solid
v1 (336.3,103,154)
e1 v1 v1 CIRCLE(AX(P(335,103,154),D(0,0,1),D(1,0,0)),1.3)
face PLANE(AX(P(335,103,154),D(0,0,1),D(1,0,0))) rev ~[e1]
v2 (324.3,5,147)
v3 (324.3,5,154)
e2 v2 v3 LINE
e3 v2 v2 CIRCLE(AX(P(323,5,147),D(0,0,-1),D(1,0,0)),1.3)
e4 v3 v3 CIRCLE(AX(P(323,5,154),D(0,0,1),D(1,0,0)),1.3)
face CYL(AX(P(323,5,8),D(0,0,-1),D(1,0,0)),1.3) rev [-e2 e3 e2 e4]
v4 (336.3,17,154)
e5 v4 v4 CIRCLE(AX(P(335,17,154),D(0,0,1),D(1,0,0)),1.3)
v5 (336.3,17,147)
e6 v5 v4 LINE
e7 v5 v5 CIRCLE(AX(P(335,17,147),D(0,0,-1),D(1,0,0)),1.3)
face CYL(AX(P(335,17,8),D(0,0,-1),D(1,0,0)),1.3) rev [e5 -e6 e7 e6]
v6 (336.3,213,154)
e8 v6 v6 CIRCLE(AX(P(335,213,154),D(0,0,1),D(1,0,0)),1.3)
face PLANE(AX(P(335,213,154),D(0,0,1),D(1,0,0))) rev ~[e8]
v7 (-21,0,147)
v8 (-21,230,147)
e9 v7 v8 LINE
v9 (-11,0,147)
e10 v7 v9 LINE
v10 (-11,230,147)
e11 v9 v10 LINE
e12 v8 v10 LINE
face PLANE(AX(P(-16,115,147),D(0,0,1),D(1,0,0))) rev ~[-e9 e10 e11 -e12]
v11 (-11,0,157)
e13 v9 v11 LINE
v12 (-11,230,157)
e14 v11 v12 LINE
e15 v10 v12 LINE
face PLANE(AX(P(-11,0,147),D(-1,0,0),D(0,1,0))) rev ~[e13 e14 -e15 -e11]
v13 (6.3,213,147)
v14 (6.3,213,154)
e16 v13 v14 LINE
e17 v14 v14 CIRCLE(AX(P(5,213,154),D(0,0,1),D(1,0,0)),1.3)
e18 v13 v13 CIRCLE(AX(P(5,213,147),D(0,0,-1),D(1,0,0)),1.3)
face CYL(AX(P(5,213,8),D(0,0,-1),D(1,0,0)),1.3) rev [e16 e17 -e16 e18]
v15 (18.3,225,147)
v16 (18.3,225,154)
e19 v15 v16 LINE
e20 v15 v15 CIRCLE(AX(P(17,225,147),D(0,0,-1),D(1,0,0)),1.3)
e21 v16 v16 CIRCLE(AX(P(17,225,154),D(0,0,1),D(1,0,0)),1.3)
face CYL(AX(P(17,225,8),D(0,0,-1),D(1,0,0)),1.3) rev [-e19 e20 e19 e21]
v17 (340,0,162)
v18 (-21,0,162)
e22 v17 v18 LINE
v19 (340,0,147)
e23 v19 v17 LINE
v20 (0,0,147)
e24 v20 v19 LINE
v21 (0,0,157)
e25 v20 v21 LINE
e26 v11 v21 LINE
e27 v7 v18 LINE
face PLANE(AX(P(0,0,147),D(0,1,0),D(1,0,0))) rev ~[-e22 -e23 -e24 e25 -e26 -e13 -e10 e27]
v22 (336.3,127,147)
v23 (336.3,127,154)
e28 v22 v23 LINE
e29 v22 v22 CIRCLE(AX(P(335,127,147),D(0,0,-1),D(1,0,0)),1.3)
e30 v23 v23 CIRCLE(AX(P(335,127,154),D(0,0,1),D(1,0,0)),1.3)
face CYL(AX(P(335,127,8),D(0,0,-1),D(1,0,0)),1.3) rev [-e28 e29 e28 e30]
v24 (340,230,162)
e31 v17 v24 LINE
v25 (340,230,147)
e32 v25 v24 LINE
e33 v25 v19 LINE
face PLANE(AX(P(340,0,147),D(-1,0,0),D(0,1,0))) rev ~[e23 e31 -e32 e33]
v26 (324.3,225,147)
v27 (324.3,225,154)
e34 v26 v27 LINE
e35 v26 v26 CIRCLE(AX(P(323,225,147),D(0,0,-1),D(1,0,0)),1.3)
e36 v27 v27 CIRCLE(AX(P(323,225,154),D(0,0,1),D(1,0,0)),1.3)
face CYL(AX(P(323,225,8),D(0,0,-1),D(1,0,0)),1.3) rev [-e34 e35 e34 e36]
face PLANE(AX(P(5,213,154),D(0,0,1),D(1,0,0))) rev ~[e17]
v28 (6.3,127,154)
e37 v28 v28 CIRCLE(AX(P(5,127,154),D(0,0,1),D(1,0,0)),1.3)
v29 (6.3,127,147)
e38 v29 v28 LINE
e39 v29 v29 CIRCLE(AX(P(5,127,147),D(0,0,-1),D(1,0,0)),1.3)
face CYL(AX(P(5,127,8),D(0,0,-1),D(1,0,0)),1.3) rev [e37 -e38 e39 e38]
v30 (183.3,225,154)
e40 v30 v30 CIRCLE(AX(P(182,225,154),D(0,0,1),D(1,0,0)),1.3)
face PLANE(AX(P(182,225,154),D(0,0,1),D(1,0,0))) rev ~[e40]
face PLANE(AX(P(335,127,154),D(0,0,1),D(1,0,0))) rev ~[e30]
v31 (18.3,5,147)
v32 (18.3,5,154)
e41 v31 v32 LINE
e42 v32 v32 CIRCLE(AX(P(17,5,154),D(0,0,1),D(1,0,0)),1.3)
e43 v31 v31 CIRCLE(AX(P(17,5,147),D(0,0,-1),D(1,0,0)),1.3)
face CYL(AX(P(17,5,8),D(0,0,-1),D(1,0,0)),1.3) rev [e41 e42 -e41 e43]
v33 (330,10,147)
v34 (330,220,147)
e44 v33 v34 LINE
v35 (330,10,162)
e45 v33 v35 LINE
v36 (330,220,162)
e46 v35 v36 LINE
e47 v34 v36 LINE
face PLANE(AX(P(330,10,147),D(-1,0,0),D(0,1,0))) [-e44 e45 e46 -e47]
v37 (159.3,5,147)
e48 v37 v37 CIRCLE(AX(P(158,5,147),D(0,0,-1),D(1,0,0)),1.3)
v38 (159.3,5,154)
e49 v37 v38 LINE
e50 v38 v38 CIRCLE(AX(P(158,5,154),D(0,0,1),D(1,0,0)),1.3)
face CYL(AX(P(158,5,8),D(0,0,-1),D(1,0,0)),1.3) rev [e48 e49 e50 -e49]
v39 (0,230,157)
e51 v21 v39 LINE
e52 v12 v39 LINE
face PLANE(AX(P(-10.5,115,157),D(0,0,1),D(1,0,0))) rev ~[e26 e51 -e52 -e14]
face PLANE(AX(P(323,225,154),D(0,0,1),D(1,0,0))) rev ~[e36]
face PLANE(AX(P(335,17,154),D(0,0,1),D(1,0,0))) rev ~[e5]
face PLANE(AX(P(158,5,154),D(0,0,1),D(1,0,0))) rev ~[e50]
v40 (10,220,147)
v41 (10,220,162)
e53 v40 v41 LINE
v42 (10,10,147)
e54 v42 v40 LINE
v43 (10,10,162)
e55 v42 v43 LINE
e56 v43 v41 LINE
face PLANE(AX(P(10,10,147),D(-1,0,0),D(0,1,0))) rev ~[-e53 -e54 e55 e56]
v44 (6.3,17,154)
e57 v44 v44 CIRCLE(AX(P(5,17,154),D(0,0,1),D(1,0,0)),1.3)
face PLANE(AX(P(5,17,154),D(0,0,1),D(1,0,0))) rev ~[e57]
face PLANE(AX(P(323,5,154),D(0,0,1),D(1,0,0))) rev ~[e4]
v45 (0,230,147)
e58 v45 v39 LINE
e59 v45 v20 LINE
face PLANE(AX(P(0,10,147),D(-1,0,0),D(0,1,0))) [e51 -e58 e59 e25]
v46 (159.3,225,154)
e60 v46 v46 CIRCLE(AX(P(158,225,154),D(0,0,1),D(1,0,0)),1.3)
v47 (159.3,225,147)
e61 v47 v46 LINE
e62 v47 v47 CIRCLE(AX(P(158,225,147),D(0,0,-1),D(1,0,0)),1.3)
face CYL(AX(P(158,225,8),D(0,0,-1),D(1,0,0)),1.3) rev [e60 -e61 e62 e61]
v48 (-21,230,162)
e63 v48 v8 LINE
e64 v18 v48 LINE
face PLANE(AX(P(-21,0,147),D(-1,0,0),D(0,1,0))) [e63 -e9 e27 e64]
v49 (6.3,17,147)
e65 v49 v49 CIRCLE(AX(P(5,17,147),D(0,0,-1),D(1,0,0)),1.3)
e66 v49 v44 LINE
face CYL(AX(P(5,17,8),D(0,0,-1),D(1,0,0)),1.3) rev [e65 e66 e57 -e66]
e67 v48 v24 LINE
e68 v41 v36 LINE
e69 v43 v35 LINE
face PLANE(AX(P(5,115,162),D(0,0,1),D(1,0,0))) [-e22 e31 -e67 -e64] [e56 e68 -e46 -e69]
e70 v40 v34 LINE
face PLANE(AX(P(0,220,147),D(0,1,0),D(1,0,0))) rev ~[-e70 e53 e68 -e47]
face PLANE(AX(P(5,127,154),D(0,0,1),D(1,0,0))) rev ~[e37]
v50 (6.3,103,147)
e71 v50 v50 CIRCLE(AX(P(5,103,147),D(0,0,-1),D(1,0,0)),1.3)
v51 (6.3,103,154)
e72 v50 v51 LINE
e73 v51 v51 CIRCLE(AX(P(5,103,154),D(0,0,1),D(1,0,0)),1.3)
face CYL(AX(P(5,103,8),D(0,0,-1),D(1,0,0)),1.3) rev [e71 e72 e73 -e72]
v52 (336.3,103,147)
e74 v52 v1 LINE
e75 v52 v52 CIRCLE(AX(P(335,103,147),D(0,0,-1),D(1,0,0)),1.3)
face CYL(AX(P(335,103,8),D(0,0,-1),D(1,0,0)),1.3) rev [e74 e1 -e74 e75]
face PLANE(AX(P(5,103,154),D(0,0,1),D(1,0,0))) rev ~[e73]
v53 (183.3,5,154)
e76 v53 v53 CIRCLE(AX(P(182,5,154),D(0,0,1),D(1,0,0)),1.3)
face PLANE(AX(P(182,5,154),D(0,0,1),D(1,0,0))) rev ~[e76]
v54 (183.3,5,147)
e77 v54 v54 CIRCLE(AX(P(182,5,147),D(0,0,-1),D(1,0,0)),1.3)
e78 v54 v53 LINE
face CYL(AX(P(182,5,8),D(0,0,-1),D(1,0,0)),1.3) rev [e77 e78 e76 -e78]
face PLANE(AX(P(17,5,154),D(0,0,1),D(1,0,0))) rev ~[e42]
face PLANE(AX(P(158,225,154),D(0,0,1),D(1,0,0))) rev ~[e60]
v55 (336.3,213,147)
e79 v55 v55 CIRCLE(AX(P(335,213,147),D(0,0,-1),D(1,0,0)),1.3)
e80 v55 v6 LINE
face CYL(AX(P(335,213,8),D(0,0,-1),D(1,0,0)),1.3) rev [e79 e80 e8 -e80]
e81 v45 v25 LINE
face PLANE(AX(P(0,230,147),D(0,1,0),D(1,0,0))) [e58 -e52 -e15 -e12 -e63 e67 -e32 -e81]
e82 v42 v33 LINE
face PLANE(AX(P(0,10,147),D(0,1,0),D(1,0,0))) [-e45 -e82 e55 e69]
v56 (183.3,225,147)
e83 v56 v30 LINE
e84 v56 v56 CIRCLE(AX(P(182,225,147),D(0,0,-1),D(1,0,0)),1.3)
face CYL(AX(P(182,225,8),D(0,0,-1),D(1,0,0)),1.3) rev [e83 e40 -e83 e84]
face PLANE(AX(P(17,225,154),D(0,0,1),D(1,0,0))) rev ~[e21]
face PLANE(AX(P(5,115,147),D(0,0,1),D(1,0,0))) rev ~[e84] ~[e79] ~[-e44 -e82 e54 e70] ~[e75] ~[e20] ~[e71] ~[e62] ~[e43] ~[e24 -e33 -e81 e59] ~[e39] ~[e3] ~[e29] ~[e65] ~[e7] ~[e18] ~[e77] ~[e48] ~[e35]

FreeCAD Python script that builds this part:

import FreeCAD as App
import Part
import Sketcher
Q = App.Units.Quantity


def add_polygon(sketch, points):
    """Adds a closed chain of lines whose ends are joined by coincident constraints."""
    first, n = sketch.GeometryCount, len(points)
    for a, b in zip(points, points[1:] + points[:1]):
        sketch.addGeometry(Part.LineSegment(App.Vector(*a, 0), App.Vector(*b, 0)), False)
    for i in range(n):
        sketch.addConstraint(Sketcher.Constraint("Coincident", first + i, 2, first + (i + 1) % n, 1))

doc = App.newDocument("Part")
params = doc.addObject("Spreadsheet::Sheet", "Params")
for row, (alias, value) in enumerate([
    ("sketch1_diameter", "2.6 mm"),
    ("pad1_length", "146 mm"),
    ("sketch2_diameter", "2.6 mm"),
    ("pad2_length", "146 mm"),
    ("sketch3_diameter", "2.6 mm"),
    ("pad3_length", "146 mm"),
    ("sketch4_diameter", "2.6 mm"),
    ("pad4_length", "146 mm"),
    ("sketch5_diameter", "2.6 mm"),
    ("pad5_length", "146 mm"),
    ("sketch6_diameter", "2.6 mm"),
    ("pad6_length", "146 mm"),
    ("sketch7_diameter", "2.6 mm"),
    ("pad7_length", "146 mm"),
    ("sketch8_diameter", "2.6 mm"),
    ("pad8_length", "146 mm"),
    ("sketch9_diameter", "2.6 mm"),
    ("pad9_length", "146 mm"),
    ("sketch10_diameter", "2.6 mm"),
    ("pad10_length", "146 mm"),
    ("sketch11_diameter", "2.6 mm"),
    ("pad11_length", "146 mm"),
    ("sketch12_diameter", "2.6 mm"),
    ("pad12_length", "146 mm"),
    ("sketch13_diameter", "2.6 mm"),
    ("pad13_length", "146 mm"),
    ("sketch14_diameter", "2.6 mm"),
    ("pad14_length", "146 mm"),
    ("sketch15_diameter", "2.6 mm"),
    ("pad15_length", "146 mm"),
    ("sketch16_diameter", "2.6 mm"),
    ("pad16_length", "146 mm"),
    ("sketch17_width", "10 mm"),
    ("sketch17_height", "230 mm"),
    ("pad17_length", "10 mm"),
    ("sketch18_width", "10 mm"),
    ("sketch18_height", "210 mm"),
    ("pad18_length", "15 mm"),
    ("sketch19_width", "340 mm"),
    ("sketch19_height", "10 mm"),
    ("pad19_length", "15 mm"),
    ("sketch20_width", "10 mm"),
    ("sketch20_height", "210 mm"),
    ("pad20_length", "15 mm"),
    ("sketch21_width", "340 mm"),
    ("sketch21_height", "10 mm"),
    ("pad21_length", "15 mm"),
    ("sketch22_width", "21 mm"),
    ("sketch22_height", "230 mm"),
    ("pad22_length", "5 mm"),
], start=1):
    params.set(f"A{row}", alias)
    params.set(f"B{row}", "=" + value)
    params.setAlias(f"B{row}", alias)

body = doc.addObject("PartDesign::Body", "Body")

# Sketch on XY plane
sketch1 = doc.addObject("Sketcher::SketchObject", "Sketch")
body.addObject(sketch1)
sketch1.AttachmentSupport = (doc.XY_Plane, [""])
sketch1.MapMode = "FlatFace"
sketch1.AttachmentOffset = App.Placement(App.Vector(0, 0, 8), App.Rotation())
sketch1.addGeometry(Part.Circle(App.Vector(5, 103, 0), App.Vector(0, 0, 1), 1.3), False)
sketch1.addConstraint([
    Sketcher.Constraint("Diameter", 0, Q("2.6 mm")),
    Sketcher.Constraint("DistanceX", -1, 1, 0, 3, Q("5 mm")),
    Sketcher.Constraint("DistanceY", -1, 1, 0, 3, Q("103 mm")),
])
sketch1.setExpression("Constraints[0]", "Params.sketch1_diameter")
pad1 = doc.addObject("PartDesign::Pad", "Pad")
body.addObject(pad1)
pad1.Profile = sketch1
pad1.setExpression("Length", "Params.pad1_length")
body2 = doc.addObject("PartDesign::Body", "Body001")

# Sketch on XY plane
sketch2 = doc.addObject("Sketcher::SketchObject", "Sketch001")
body2.addObject(sketch2)
sketch2.AttachmentSupport = (doc.getObject("XY_Plane001"), [""])
sketch2.MapMode = "FlatFace"
sketch2.AttachmentOffset = App.Placement(App.Vector(0, 0, 8), App.Rotation())
sketch2.addGeometry(Part.Circle(App.Vector(5, 127, 0), App.Vector(0, 0, 1), 1.3), False)
sketch2.addConstraint([
    Sketcher.Constraint("Diameter", 0, Q("2.6 mm")),
    Sketcher.Constraint("DistanceX", -1, 1, 0, 3, Q("5 mm")),
    Sketcher.Constraint("DistanceY", -1, 1, 0, 3, Q("127 mm")),
])
sketch2.setExpression("Constraints[0]", "Params.sketch2_diameter")
pad2 = doc.addObject("PartDesign::Pad", "Pad001")
body2.addObject(pad2)
pad2.Profile = sketch2
pad2.setExpression("Length", "Params.pad2_length")
body3 = doc.addObject("PartDesign::Body", "Body002")

# Sketch on XY plane
sketch3 = doc.addObject("Sketcher::SketchObject", "Sketch002")
body3.addObject(sketch3)
sketch3.AttachmentSupport = (doc.getObject("XY_Plane002"), [""])
sketch3.MapMode = "FlatFace"
sketch3.AttachmentOffset = App.Placement(App.Vector(0, 0, 8), App.Rotation())
sketch3.addGeometry(Part.Circle(App.Vector(5, 213, 0), App.Vector(0, 0, 1), 1.3), False)
sketch3.addConstraint([
    Sketcher.Constraint("Diameter", 0, Q("2.6 mm")),
    Sketcher.Constraint("DistanceX", -1, 1, 0, 3, Q("5 mm")),
    Sketcher.Constraint("DistanceY", -1, 1, 0, 3, Q("213 mm")),
])
sketch3.setExpression("Constraints[0]", "Params.sketch3_diameter")
pad3 = doc.addObject("PartDesign::Pad", "Pad002")
body3.addObject(pad3)
pad3.Profile = sketch3
pad3.setExpression("Length", "Params.pad3_length")
body4 = doc.addObject("PartDesign::Body", "Body003")

# Sketch on XY plane
sketch4 = doc.addObject("Sketcher::SketchObject", "Sketch003")
body4.addObject(sketch4)
sketch4.AttachmentSupport = (doc.getObject("XY_Plane003"), [""])
sketch4.MapMode = "FlatFace"
sketch4.AttachmentOffset = App.Placement(App.Vector(0, 0, 8), App.Rotation())
sketch4.addGeometry(Part.Circle(App.Vector(17, 225, 0), App.Vector(0, 0, 1), 1.3), False)
sketch4.addConstraint([
    Sketcher.Constraint("Diameter", 0, Q("2.6 mm")),
    Sketcher.Constraint("DistanceX", -1, 1, 0, 3, Q("17 mm")),
    Sketcher.Constraint("DistanceY", -1, 1, 0, 3, Q("225 mm")),
])
sketch4.setExpression("Constraints[0]", "Params.sketch4_diameter")
pad4 = doc.addObject("PartDesign::Pad", "Pad003")
body4.addObject(pad4)
pad4.Profile = sketch4
pad4.setExpression("Length", "Params.pad4_length")
body5 = doc.addObject("PartDesign::Body", "Body004")

# Sketch on XY plane
sketch5 = doc.addObject("Sketcher::SketchObject", "Sketch004")
body5.addObject(sketch5)
sketch5.AttachmentSupport = (doc.getObject("XY_Plane004"), [""])
sketch5.MapMode = "FlatFace"
sketch5.AttachmentOffset = App.Placement(App.Vector(0, 0, 8), App.Rotation())
sketch5.addGeometry(Part.Circle(App.Vector(158, 225, 0), App.Vector(0, 0, 1), 1.3), False)
sketch5.addConstraint([
    Sketcher.Constraint("Diameter", 0, Q("2.6 mm")),
    Sketcher.Constraint("DistanceX", -1, 1, 0, 3, Q("158 mm")),
    Sketcher.Constraint("DistanceY", -1, 1, 0, 3, Q("225 mm")),
])
sketch5.setExpression("Constraints[0]", "Params.sketch5_diameter")
pad5 = doc.addObject("PartDesign::Pad", "Pad004")
body5.addObject(pad5)
pad5.Profile = sketch5
pad5.setExpression("Length", "Params.pad5_length")
body6 = doc.addObject("PartDesign::Body", "Body005")

# Sketch on XY plane
sketch6 = doc.addObject("Sketcher::SketchObject", "Sketch005")
body6.addObject(sketch6)
sketch6.AttachmentSupport = (doc.getObject("XY_Plane005"), [""])
sketch6.MapMode = "FlatFace"
sketch6.AttachmentOffset = App.Placement(App.Vector(0, 0, 8), App.Rotation())
sketch6.addGeometry(Part.Circle(App.Vector(182, 225, 0), App.Vector(0, 0, 1), 1.3), False)
sketch6.addConstraint([
    Sketcher.Constraint("Diameter", 0, Q("2.6 mm")),
    Sketcher.Constraint("DistanceX", -1, 1, 0, 3, Q("182 mm")),
    Sketcher.Constraint("DistanceY", -1, 1, 0, 3, Q("225 mm")),
])
sketch6.setExpression("Constraints[0]", "Params.sketch6_diameter")
pad6 = doc.addObject("PartDesign::Pad", "Pad005")
body6.addObject(pad6)
pad6.Profile = sketch6
pad6.setExpression("Length", "Params.pad6_length")
body7 = doc.addObject("PartDesign::Body", "Body006")

# Sketch on XY plane
sketch7 = doc.addObject("Sketcher::SketchObject", "Sketch006")
body7.addObject(sketch7)
sketch7.AttachmentSupport = (doc.getObject("XY_Plane006"), [""])
sketch7.MapMode = "FlatFace"
sketch7.AttachmentOffset = App.Placement(App.Vector(0, 0, 8), App.Rotation())
sketch7.addGeometry(Part.Circle(App.Vector(323, 225, 0), App.Vector(0, 0, 1), 1.3), False)
sketch7.addConstraint([
    Sketcher.Constraint("Diameter", 0, Q("2.6 mm")),
    Sketcher.Constraint("DistanceX", -1, 1, 0, 3, Q("323 mm")),
    Sketcher.Constraint("DistanceY", -1, 1, 0, 3, Q("225 mm")),
])
sketch7.setExpression("Constraints[0]", "Params.sketch7_diameter")
pad7 = doc.addObject("PartDesign::Pad", "Pad006")
body7.addObject(pad7)
pad7.Profile = sketch7
pad7.setExpression("Length", "Params.pad7_length")
body8 = doc.addObject("PartDesign::Body", "Body007")

# Sketch on XY plane
sketch8 = doc.addObject("Sketcher::SketchObject", "Sketch007")
body8.addObject(sketch8)
sketch8.AttachmentSupport = (doc.getObject("XY_Plane007"), [""])
sketch8.MapMode = "FlatFace"
sketch8.AttachmentOffset = App.Placement(App.Vector(0, 0, 8), App.Rotation())
sketch8.addGeometry(Part.Circle(App.Vector(335, 213, 0), App.Vector(0, 0, 1), 1.3), False)
sketch8.addConstraint([
    Sketcher.Constraint("Diameter", 0, Q("2.6 mm")),
    Sketcher.Constraint("DistanceX", -1, 1, 0, 3, Q("335 mm")),
    Sketcher.Constraint("DistanceY", -1, 1, 0, 3, Q("213 mm")),
])
sketch8.setExpression("Constraints[0]", "Params.sketch8_diameter")
pad8 = doc.addObject("PartDesign::Pad", "Pad007")
body8.addObject(pad8)
pad8.Profile = sketch8
pad8.setExpression("Length", "Params.pad8_length")
body9 = doc.addObject("PartDesign::Body", "Body008")

# Sketch on XY plane
sketch9 = doc.addObject("Sketcher::SketchObject", "Sketch008")
body9.addObject(sketch9)
sketch9.AttachmentSupport = (doc.getObject("XY_Plane008"), [""])
sketch9.MapMode = "FlatFace"
sketch9.AttachmentOffset = App.Placement(App.Vector(0, 0, 8), App.Rotation())
sketch9.addGeometry(Part.Circle(App.Vector(335, 127, 0), App.Vector(0, 0, 1), 1.3), False)
sketch9.addConstraint([
    Sketcher.Constraint("Diameter", 0, Q("2.6 mm")),
    Sketcher.Constraint("DistanceX", -1, 1, 0, 3, Q("335 mm")),
    Sketcher.Constraint("DistanceY", -1, 1, 0, 3, Q("127 mm")),
])
sketch9.setExpression("Constraints[0]", "Params.sketch9_diameter")
pad9 = doc.addObject("PartDesign::Pad", "Pad008")
body9.addObject(pad9)
pad9.Profile = sketch9
pad9.setExpression("Length", "Params.pad9_length")
body10 = doc.addObject("PartDesign::Body", "Body009")

# Sketch on XY plane
sketch10 = doc.addObject("Sketcher::SketchObject", "Sketch009")
body10.addObject(sketch10)
sketch10.AttachmentSupport = (doc.getObject("XY_Plane009"), [""])
sketch10.MapMode = "FlatFace"
sketch10.AttachmentOffset = App.Placement(App.Vector(0, 0, 8), App.Rotation())
sketch10.addGeometry(Part.Circle(App.Vector(335, 103, 0), App.Vector(0, 0, 1), 1.3), False)
sketch10.addConstraint([
    Sketcher.Constraint("Diameter", 0, Q("2.6 mm")),
    Sketcher.Constraint("DistanceX", -1, 1, 0, 3, Q("335 mm")),
    Sketcher.Constraint("DistanceY", -1, 1, 0, 3, Q("103 mm")),
])
sketch10.setExpression("Constraints[0]", "Params.sketch10_diameter")
pad10 = doc.addObject("PartDesign::Pad", "Pad009")
body10.addObject(pad10)
pad10.Profile = sketch10
pad10.setExpression("Length", "Params.pad10_length")
body11 = doc.addObject("PartDesign::Body", "Body010")

# Sketch on XY plane
sketch11 = doc.addObject("Sketcher::SketchObject", "Sketch010")
body11.addObject(sketch11)
sketch11.AttachmentSupport = (doc.getObject("XY_Plane010"), [""])
sketch11.MapMode = "FlatFace"
sketch11.AttachmentOffset = App.Placement(App.Vector(0, 0, 8), App.Rotation())
sketch11.addGeometry(Part.Circle(App.Vector(335, 17, 0), App.Vector(0, 0, 1), 1.3), False)
sketch11.addConstraint([
    Sketcher.Constraint("Diameter", 0, Q("2.6 mm")),
    Sketcher.Constraint("DistanceX", -1, 1, 0, 3, Q("335 mm")),
    Sketcher.Constraint("DistanceY", -1, 1, 0, 3, Q("17 mm")),
])
sketch11.setExpression("Constraints[0]", "Params.sketch11_diameter")
pad11 = doc.addObject("PartDesign::Pad", "Pad010")
body11.addObject(pad11)
pad11.Profile = sketch11
pad11.setExpression("Length", "Params.pad11_length")
body12 = doc.addObject("PartDesign::Body", "Body011")

# Sketch on XY plane
sketch12 = doc.addObject("Sketcher::SketchObject", "Sketch011")
body12.addObject(sketch12)
sketch12.AttachmentSupport = (doc.getObject("XY_Plane011"), [""])
sketch12.MapMode = "FlatFace"
sketch12.AttachmentOffset = App.Placement(App.Vector(0, 0, 8), App.Rotation())
sketch12.addGeometry(Part.Circle(App.Vector(323, 5, 0), App.Vector(0, 0, 1), 1.3), False)
sketch12.addConstraint([
    Sketcher.Constraint("Diameter", 0, Q("2.6 mm")),
    Sketcher.Constraint("DistanceX", -1, 1, 0, 3, Q("323 mm")),
    Sketcher.Constraint("DistanceY", -1, 1, 0, 3, Q("5 mm")),
])
sketch12.setExpression("Constraints[0]", "Params.sketch12_diameter")
pad12 = doc.addObject("PartDesign::Pad", "Pad011")
body12.addObject(pad12)
pad12.Profile = sketch12
pad12.setExpression("Length", "Params.pad12_length")
body13 = doc.addObject("PartDesign::Body", "Body012")

# Sketch on XY plane
sketch13 = doc.addObject("Sketcher::SketchObject", "Sketch012")
body13.addObject(sketch13)
sketch13.AttachmentSupport = (doc.getObject("XY_Plane012"), [""])
sketch13.MapMode = "FlatFace"
sketch13.AttachmentOffset = App.Placement(App.Vector(0, 0, 8), App.Rotation())
sketch13.addGeometry(Part.Circle(App.Vector(182, 5, 0), App.Vector(0, 0, 1), 1.3), False)
sketch13.addConstraint([
    Sketcher.Constraint("Diameter", 0, Q("2.6 mm")),
    Sketcher.Constraint("DistanceX", -1, 1, 0, 3, Q("182 mm")),
    Sketcher.Constraint("DistanceY", -1, 1, 0, 3, Q("5 mm")),
])
sketch13.setExpression("Constraints[0]", "Params.sketch13_diameter")
pad13 = doc.addObject("PartDesign::Pad", "Pad012")
body13.addObject(pad13)
pad13.Profile = sketch13
pad13.setExpression("Length", "Params.pad13_length")
body14 = doc.addObject("PartDesign::Body", "Body013")

# Sketch on XY plane
sketch14 = doc.addObject("Sketcher::SketchObject", "Sketch013")
body14.addObject(sketch14)
sketch14.AttachmentSupport = (doc.getObject("XY_Plane013"), [""])
sketch14.MapMode = "FlatFace"
sketch14.AttachmentOffset = App.Placement(App.Vector(0, 0, 8), App.Rotation())
sketch14.addGeometry(Part.Circle(App.Vector(158, 5, 0), App.Vector(0, 0, 1), 1.3), False)
sketch14.addConstraint([
    Sketcher.Constraint("Diameter", 0, Q("2.6 mm")),
    Sketcher.Constraint("DistanceX", -1, 1, 0, 3, Q("158 mm")),
    Sketcher.Constraint("DistanceY", -1, 1, 0, 3, Q("5 mm")),
])
sketch14.setExpression("Constraints[0]", "Params.sketch14_diameter")
pad14 = doc.addObject("PartDesign::Pad", "Pad013")
body14.addObject(pad14)
pad14.Profile = sketch14
pad14.setExpression("Length", "Params.pad14_length")
body15 = doc.addObject("PartDesign::Body", "Body014")

# Sketch on XY plane
sketch15 = doc.addObject("Sketcher::SketchObject", "Sketch014")
body15.addObject(sketch15)
sketch15.AttachmentSupport = (doc.getObject("XY_Plane014"), [""])
sketch15.MapMode = "FlatFace"
sketch15.AttachmentOffset = App.Placement(App.Vector(0, 0, 8), App.Rotation())
sketch15.addGeometry(Part.Circle(App.Vector(5, 17, 0), App.Vector(0, 0, 1), 1.3), False)
sketch15.addConstraint([
    Sketcher.Constraint("Diameter", 0, Q("2.6 mm")),
    Sketcher.Constraint("DistanceX", -1, 1, 0, 3, Q("5 mm")),
    Sketcher.Constraint("DistanceY", -1, 1, 0, 3, Q("17 mm")),
])
sketch15.setExpression("Constraints[0]", "Params.sketch15_diameter")
pad15 = doc.addObject("PartDesign::Pad", "Pad014")
body15.addObject(pad15)
pad15.Profile = sketch15
pad15.setExpression("Length", "Params.pad15_length")
body16 = doc.addObject("PartDesign::Body", "Body015")

# Sketch on XY plane
sketch16 = doc.addObject("Sketcher::SketchObject", "Sketch015")
body16.addObject(sketch16)
sketch16.AttachmentSupport = (doc.getObject("XY_Plane015"), [""])
sketch16.MapMode = "FlatFace"
sketch16.AttachmentOffset = App.Placement(App.Vector(0, 0, 8), App.Rotation())
sketch16.addGeometry(Part.Circle(App.Vector(17, 5, 0), App.Vector(0, 0, 1), 1.3), False)
sketch16.addConstraint([
    Sketcher.Constraint("Diameter", 0, Q("2.6 mm")),
    Sketcher.Constraint("DistanceX", -1, 1, 0, 3, Q("17 mm")),
    Sketcher.Constraint("DistanceY", -1, 1, 0, 3, Q("5 mm")),
])
sketch16.setExpression("Constraints[0]", "Params.sketch16_diameter")
pad16 = doc.addObject("PartDesign::Pad", "Pad015")
body16.addObject(pad16)
pad16.Profile = sketch16
pad16.setExpression("Length", "Params.pad16_length")
body17 = doc.addObject("PartDesign::Body", "Body016")

# Sketch on XY plane
sketch17 = doc.addObject("Sketcher::SketchObject", "Sketch016")
body17.addObject(sketch17)
sketch17.AttachmentSupport = (doc.getObject("XY_Plane016"), [""])
sketch17.MapMode = "FlatFace"
add_polygon(sketch17, [(-21, 479), (-21, 249), (-11, 249), (-11, 479)])  # lines 0-3
sketch17.addConstraint([
    Sketcher.Constraint("Vertical", 0),
    Sketcher.Constraint("Horizontal", 1),
    Sketcher.Constraint("Vertical", 2),
    Sketcher.Constraint("Horizontal", 3),
    Sketcher.Constraint("DistanceX", 1, 1, 1, 2, Q("10 mm")),
    Sketcher.Constraint("DistanceY", 0, 2, 0, 1, Q("230 mm")),
    Sketcher.Constraint("DistanceX", 0, 2, -1, 1, Q("21 mm")),
    Sketcher.Constraint("DistanceY", -1, 1, 0, 2, Q("249 mm")),
])
sketch17.setExpression("Constraints[8]", "Params.sketch17_width")
sketch17.setExpression("Constraints[9]", "Params.sketch17_height")
pad17 = doc.addObject("PartDesign::Pad", "Pad016")
body17.addObject(pad17)
pad17.Profile = sketch17
pad17.setExpression("Length", "Params.pad17_length")
body18 = doc.addObject("PartDesign::Body", "Body017")

# Sketch on XY plane
sketch18 = doc.addObject("Sketcher::SketchObject", "Sketch017")
body18.addObject(sketch18)
sketch18.AttachmentSupport = (doc.getObject("XY_Plane017"), [""])
sketch18.MapMode = "FlatFace"
add_polygon(sketch18, [(330, 469), (330, 259), (340, 259), (340, 469)])  # lines 0-3
sketch18.addConstraint([
    Sketcher.Constraint("Vertical", 0),
    Sketcher.Constraint("Horizontal", 1),
    Sketcher.Constraint("Vertical", 2),
    Sketcher.Constraint("Horizontal", 3),
    Sketcher.Constraint("DistanceX", 1, 1, 1, 2, Q("10 mm")),
    Sketcher.Constraint("DistanceY", 0, 2, 0, 1, Q("210 mm")),
    Sketcher.Constraint("DistanceX", -1, 1, 0, 2, Q("330 mm")),
    Sketcher.Constraint("DistanceY", -1, 1, 0, 2, Q("259 mm")),
])
sketch18.setExpression("Constraints[8]", "Params.sketch18_width")
sketch18.setExpression("Constraints[9]", "Params.sketch18_height")
pad18 = doc.addObject("PartDesign::Pad", "Pad017")
body18.addObject(pad18)
pad18.Profile = sketch18
pad18.setExpression("Length", "Params.pad18_length")
body19 = doc.addObject("PartDesign::Body", "Body018")

# Sketch on XY plane
sketch19 = doc.addObject("Sketcher::SketchObject", "Sketch018")
body19.addObject(sketch19)
sketch19.AttachmentSupport = (doc.getObject("XY_Plane018"), [""])
sketch19.MapMode = "FlatFace"
add_polygon(sketch19, [(0, 259), (0, 249), (340, 249), (340, 259)])  # lines 0-3
sketch19.addConstraint([
    Sketcher.Constraint("Vertical", 0),
    Sketcher.Constraint("Horizontal", 1),
    Sketcher.Constraint("Vertical", 2),
    Sketcher.Constraint("Horizontal", 3),
    Sketcher.Constraint("PointOnObject", 0, 2, -2),
    Sketcher.Constraint("DistanceX", 1, 1, 1, 2, Q("340 mm")),
    Sketcher.Constraint("DistanceY", 0, 2, 0, 1, Q("10 mm")),
    Sketcher.Constraint("DistanceY", -1, 1, 0, 2, Q("249 mm")),
])
sketch19.setExpression("Constraints[9]", "Params.sketch19_width")
sketch19.setExpression("Constraints[10]", "Params.sketch19_height")
pad19 = doc.addObject("PartDesign::Pad", "Pad018")
body19.addObject(pad19)
pad19.Profile = sketch19
pad19.setExpression("Length", "Params.pad19_length")
body20 = doc.addObject("PartDesign::Body", "Body019")

# Sketch on XY plane
sketch20 = doc.addObject("Sketcher::SketchObject", "Sketch019")
body20.addObject(sketch20)
sketch20.AttachmentSupport = (doc.getObject("XY_Plane019"), [""])
sketch20.MapMode = "FlatFace"
add_polygon(sketch20, [(0, 469), (0, 259), (10, 259), (10, 469)])  # lines 0-3
sketch20.addConstraint([
    Sketcher.Constraint("Vertical", 0),
    Sketcher.Constraint("Horizontal", 1),
    Sketcher.Constraint("Vertical", 2),
    Sketcher.Constraint("Horizontal", 3),
    Sketcher.Constraint("PointOnObject", 0, 2, -2),
    Sketcher.Constraint("DistanceX", 1, 1, 1, 2, Q("10 mm")),
    Sketcher.Constraint("DistanceY", 0, 2, 0, 1, Q("210 mm")),
    Sketcher.Constraint("DistanceY", -1, 1, 0, 2, Q("259 mm")),
])
sketch20.setExpression("Constraints[9]", "Params.sketch20_width")
sketch20.setExpression("Constraints[10]", "Params.sketch20_height")
pad20 = doc.addObject("PartDesign::Pad", "Pad019")
body20.addObject(pad20)
pad20.Profile = sketch20
pad20.setExpression("Length", "Params.pad20_length")
body21 = doc.addObject("PartDesign::Body", "Body020")

# Sketch on XY plane
sketch21 = doc.addObject("Sketcher::SketchObject", "Sketch020")
body21.addObject(sketch21)
sketch21.AttachmentSupport = (doc.getObject("XY_Plane020"), [""])
sketch21.MapMode = "FlatFace"
add_polygon(sketch21, [(0, 479), (0, 469), (340, 469), (340, 479)])  # lines 0-3
sketch21.addConstraint([
    Sketcher.Constraint("Vertical", 0),
    Sketcher.Constraint("Horizontal", 1),
    Sketcher.Constraint("Vertical", 2),
    Sketcher.Constraint("Horizontal", 3),
    Sketcher.Constraint("PointOnObject", 0, 2, -2),
    Sketcher.Constraint("DistanceX", 1, 1, 1, 2, Q("340 mm")),
    Sketcher.Constraint("DistanceY", 0, 2, 0, 1, Q("10 mm")),
    Sketcher.Constraint("DistanceY", -1, 1, 0, 2, Q("469 mm")),
])
sketch21.setExpression("Constraints[9]", "Params.sketch21_width")
sketch21.setExpression("Constraints[10]", "Params.sketch21_height")
pad21 = doc.addObject("PartDesign::Pad", "Pad020")
body21.addObject(pad21)
pad21.Profile = sketch21
pad21.setExpression("Length", "Params.pad21_length")
doc.recompute()

boolean = doc.addObject("PartDesign::Boolean", "Boolean")
body21.addObject(boolean)
boolean.Type = "Fuse"
boolean.addObjects([body18])
doc.recompute()

boolean2 = doc.addObject("PartDesign::Boolean", "Boolean001")
body21.addObject(boolean2)
boolean2.Type = "Fuse"
boolean2.addObjects([body19])
doc.recompute()

boolean3 = doc.addObject("PartDesign::Boolean", "Boolean002")
body21.addObject(boolean3)
boolean3.Type = "Fuse"
boolean3.addObjects([body20])
body22 = doc.addObject("PartDesign::Body", "Body021")

# Sketch on XY plane
sketch22 = doc.addObject("Sketcher::SketchObject", "Sketch021")
body22.addObject(sketch22)
sketch22.AttachmentSupport = (doc.getObject("XY_Plane021"), [""])
sketch22.MapMode = "FlatFace"
sketch22.AttachmentOffset = App.Placement(App.Vector(0, 0, 10), App.Rotation())
add_polygon(sketch22, [(-21, 479), (-21, 249), (0, 249), (0, 479)])  # lines 0-3
sketch22.addConstraint([
    Sketcher.Constraint("Vertical", 0),
    Sketcher.Constraint("Horizontal", 1),
    Sketcher.Constraint("Vertical", 2),
    Sketcher.Constraint("Horizontal", 3),
    Sketcher.Constraint("PointOnObject", 1, 2, -2),
    Sketcher.Constraint("DistanceX", 1, 1, 1, 2, Q("21 mm")),
    Sketcher.Constraint("DistanceY", 0, 2, 0, 1, Q("230 mm")),
    Sketcher.Constraint("DistanceY", -1, 1, 0, 2, Q("249 mm")),
])
sketch22.setExpression("Constraints[9]", "Params.sketch22_width")
sketch22.setExpression("Constraints[10]", "Params.sketch22_height")
pad22 = doc.addObject("PartDesign::Pad", "Pad021")
body22.addObject(pad22)
pad22.Profile = sketch22
pad22.setExpression("Length", "Params.pad22_length")
doc.recompute()

boolean4 = doc.addObject("PartDesign::Boolean", "Boolean003")
body22.addObject(boolean4)
boolean4.Type = "Fuse"
boolean4.addObjects([body17])
doc.recompute()

boolean5 = doc.addObject("PartDesign::Boolean", "Boolean004")
body22.addObject(boolean5)
boolean5.Type = "Fuse"
boolean5.addObjects([body21])
body23 = doc.addObject("PartDesign::Body", "Body022")
doc.recompute()

body22.Placement = App.Placement(App.Vector(0, -249, 147), App.Rotation(App.Vector(0, 0, 1), 0))
boolean6 = doc.addObject("PartDesign::Boolean", "Boolean005")
body23.addObject(boolean6)
boolean6.Type = "Fuse"
boolean6.addObjects([body22])
doc.recompute()

boolean7 = doc.addObject("PartDesign::Boolean", "Boolean006")
body23.addObject(boolean7)
boolean7.Type = "Cut"
boolean7.addObjects([body16])
doc.recompute()

boolean8 = doc.addObject("PartDesign::Boolean", "Boolean007")
body23.addObject(boolean8)
boolean8.Type = "Cut"
boolean8.addObjects([body15])
doc.recompute()

boolean9 = doc.addObject("PartDesign::Boolean", "Boolean008")
body23.addObject(boolean9)
boolean9.Type = "Cut"
boolean9.addObjects([body14])
doc.recompute()

boolean10 = doc.addObject("PartDesign::Boolean", "Boolean009")
body23.addObject(boolean10)
boolean10.Type = "Cut"
boolean10.addObjects([body13])
doc.recompute()

boolean11 = doc.addObject("PartDesign::Boolean", "Boolean010")
body23.addObject(boolean11)
boolean11.Type = "Cut"
boolean11.addObjects([body12])
doc.recompute()

boolean12 = doc.addObject("PartDesign::Boolean", "Boolean011")
body23.addObject(boolean12)
boolean12.Type = "Cut"
boolean12.addObjects([body11])
doc.recompute()

boolean13 = doc.addObject("PartDesign::Boolean", "Boolean012")
body23.addObject(boolean13)
boolean13.Type = "Cut"
boolean13.addObjects([body10])
doc.recompute()

boolean14 = doc.addObject("PartDesign::Boolean", "Boolean013")
body23.addObject(boolean14)
boolean14.Type = "Cut"
boolean14.addObjects([body9])
doc.recompute()

boolean15 = doc.addObject("PartDesign::Boolean", "Boolean014")
body23.addObject(boolean15)
boolean15.Type = "Cut"
boolean15.addObjects([body8])
doc.recompute()

boolean16 = doc.addObject("PartDesign::Boolean", "Boolean015")
body23.addObject(boolean16)
boolean16.Type = "Cut"
boolean16.addObjects([body7])
doc.recompute()

boolean17 = doc.addObject("PartDesign::Boolean", "Boolean016")
body23.addObject(boolean17)
boolean17.Type = "Cut"
boolean17.addObjects([body6])
doc.recompute()

boolean18 = doc.addObject("PartDesign::Boolean", "Boolean017")
body23.addObject(boolean18)
boolean18.Type = "Cut"
boolean18.addObjects([body5])
doc.recompute()

boolean19 = doc.addObject("PartDesign::Boolean", "Boolean018")
body23.addObject(boolean19)
boolean19.Type = "Cut"
boolean19.addObjects([body4])
doc.recompute()

boolean20 = doc.addObject("PartDesign::Boolean", "Boolean019")
body23.addObject(boolean20)
boolean20.Type = "Cut"
boolean20.addObjects([body3])
doc.recompute()

boolean21 = doc.addObject("PartDesign::Boolean", "Boolean020")
body23.addObject(boolean21)
boolean21.Type = "Cut"
boolean21.addObjects([body2])
doc.recompute()

boolean22 = doc.addObject("PartDesign::Boolean", "Boolean021")
body23.addObject(boolean22)
boolean22.Type = "Cut"
boolean22.addObjects([body])

doc.recompute()
